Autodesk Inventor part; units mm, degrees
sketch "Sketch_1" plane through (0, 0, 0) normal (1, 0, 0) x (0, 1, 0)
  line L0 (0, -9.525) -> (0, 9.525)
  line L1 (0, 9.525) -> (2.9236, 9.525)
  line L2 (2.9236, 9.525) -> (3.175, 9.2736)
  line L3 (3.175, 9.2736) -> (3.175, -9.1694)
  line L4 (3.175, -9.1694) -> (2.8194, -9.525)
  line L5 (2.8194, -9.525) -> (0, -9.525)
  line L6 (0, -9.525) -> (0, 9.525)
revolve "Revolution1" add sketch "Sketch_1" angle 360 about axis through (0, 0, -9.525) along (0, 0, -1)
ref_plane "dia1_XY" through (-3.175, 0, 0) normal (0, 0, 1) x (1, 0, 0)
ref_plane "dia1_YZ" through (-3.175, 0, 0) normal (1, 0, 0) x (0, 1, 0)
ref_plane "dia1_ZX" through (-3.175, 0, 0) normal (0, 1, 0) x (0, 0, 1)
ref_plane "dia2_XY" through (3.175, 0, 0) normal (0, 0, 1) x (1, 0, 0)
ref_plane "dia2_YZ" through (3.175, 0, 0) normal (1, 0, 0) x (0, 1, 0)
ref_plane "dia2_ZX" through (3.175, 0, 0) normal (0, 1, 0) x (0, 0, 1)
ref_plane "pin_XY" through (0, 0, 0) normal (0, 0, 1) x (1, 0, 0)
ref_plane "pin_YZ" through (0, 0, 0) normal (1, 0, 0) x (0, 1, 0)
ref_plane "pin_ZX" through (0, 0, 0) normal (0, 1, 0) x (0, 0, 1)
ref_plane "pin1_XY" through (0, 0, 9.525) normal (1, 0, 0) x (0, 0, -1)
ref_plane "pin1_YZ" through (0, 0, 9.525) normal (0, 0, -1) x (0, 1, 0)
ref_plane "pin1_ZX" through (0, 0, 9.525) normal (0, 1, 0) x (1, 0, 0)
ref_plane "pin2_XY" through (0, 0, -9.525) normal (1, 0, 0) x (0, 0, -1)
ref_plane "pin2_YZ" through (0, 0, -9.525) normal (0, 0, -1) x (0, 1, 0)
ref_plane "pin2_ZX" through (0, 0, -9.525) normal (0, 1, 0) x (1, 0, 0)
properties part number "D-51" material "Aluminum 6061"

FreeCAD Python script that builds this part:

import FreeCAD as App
import Part
import Sketcher
from FreeCAD import Vector
Q = App.Units.Quantity


def add_polygon(sketch, points):
    """Adds a closed chain of lines whose ends are joined by coincident constraints."""
    first, n = sketch.GeometryCount, len(points)
    for a, b in zip(points, points[1:] + points[:1]):
        sketch.addGeometry(Part.LineSegment(App.Vector(*a, 0), App.Vector(*b, 0)), False)
    for i in range(n):
        sketch.addConstraint(Sketcher.Constraint("Coincident", first + i, 2, first + (i + 1) % n, 1))

doc = App.newDocument("Part")
body = doc.addObject("PartDesign::Body", "Body")

sketch1 = body.newObject("Sketcher::SketchObject", "Sketch")
sketch1.AttachmentSupport = (doc.getObject("YZ_Plane"), [""])
sketch1.MapMode = "FlatFace"
add_polygon(sketch1, [(0, 9.53), (0, -9.53), (2.82, -9.53), (3.17, -9.17), (3.17, 9.27), (2.92, 9.53)])
sketch1.addConstraint(Sketcher.Constraint("Vertical", 0))
sketch1.addConstraint(Sketcher.Constraint("Horizontal", 1))
sketch1.addConstraint(Sketcher.Constraint("Vertical", 3))
sketch1.addConstraint(Sketcher.Constraint("Horizontal", 5))
sketch1.addConstraint(Sketcher.Constraint("Symmetric", 0, 2, 5, 2, -1, 1))
sketch1.addConstraint(Sketcher.Constraint("Perpendicular", 2, 4))
sketch1.addConstraint(Sketcher.Constraint("Angle", 2, Q("45 deg")))
sketch1.addConstraint(Sketcher.Constraint("DistanceY", 0, 2, 0, 1, Q("0.75 in")))
sketch1.addConstraint(Sketcher.Constraint("DistanceX", 1, 1, 1, 2, Q("0.111 in")))
sketch1.addConstraint(Sketcher.Constraint("Distance", 4, Q("0.014 in")))
sketch1.addConstraint(Sketcher.Constraint("DistanceX", 5, 2, 5, 1, Q("0.1151 in")))
revolution = body.newObject("PartDesign::Revolution", "Revolution")
revolution.Profile = sketch1
revolution.ReferenceAxis = (sketch1, ["V_Axis"])
revolution.Angle = 360

doc.recompute()
